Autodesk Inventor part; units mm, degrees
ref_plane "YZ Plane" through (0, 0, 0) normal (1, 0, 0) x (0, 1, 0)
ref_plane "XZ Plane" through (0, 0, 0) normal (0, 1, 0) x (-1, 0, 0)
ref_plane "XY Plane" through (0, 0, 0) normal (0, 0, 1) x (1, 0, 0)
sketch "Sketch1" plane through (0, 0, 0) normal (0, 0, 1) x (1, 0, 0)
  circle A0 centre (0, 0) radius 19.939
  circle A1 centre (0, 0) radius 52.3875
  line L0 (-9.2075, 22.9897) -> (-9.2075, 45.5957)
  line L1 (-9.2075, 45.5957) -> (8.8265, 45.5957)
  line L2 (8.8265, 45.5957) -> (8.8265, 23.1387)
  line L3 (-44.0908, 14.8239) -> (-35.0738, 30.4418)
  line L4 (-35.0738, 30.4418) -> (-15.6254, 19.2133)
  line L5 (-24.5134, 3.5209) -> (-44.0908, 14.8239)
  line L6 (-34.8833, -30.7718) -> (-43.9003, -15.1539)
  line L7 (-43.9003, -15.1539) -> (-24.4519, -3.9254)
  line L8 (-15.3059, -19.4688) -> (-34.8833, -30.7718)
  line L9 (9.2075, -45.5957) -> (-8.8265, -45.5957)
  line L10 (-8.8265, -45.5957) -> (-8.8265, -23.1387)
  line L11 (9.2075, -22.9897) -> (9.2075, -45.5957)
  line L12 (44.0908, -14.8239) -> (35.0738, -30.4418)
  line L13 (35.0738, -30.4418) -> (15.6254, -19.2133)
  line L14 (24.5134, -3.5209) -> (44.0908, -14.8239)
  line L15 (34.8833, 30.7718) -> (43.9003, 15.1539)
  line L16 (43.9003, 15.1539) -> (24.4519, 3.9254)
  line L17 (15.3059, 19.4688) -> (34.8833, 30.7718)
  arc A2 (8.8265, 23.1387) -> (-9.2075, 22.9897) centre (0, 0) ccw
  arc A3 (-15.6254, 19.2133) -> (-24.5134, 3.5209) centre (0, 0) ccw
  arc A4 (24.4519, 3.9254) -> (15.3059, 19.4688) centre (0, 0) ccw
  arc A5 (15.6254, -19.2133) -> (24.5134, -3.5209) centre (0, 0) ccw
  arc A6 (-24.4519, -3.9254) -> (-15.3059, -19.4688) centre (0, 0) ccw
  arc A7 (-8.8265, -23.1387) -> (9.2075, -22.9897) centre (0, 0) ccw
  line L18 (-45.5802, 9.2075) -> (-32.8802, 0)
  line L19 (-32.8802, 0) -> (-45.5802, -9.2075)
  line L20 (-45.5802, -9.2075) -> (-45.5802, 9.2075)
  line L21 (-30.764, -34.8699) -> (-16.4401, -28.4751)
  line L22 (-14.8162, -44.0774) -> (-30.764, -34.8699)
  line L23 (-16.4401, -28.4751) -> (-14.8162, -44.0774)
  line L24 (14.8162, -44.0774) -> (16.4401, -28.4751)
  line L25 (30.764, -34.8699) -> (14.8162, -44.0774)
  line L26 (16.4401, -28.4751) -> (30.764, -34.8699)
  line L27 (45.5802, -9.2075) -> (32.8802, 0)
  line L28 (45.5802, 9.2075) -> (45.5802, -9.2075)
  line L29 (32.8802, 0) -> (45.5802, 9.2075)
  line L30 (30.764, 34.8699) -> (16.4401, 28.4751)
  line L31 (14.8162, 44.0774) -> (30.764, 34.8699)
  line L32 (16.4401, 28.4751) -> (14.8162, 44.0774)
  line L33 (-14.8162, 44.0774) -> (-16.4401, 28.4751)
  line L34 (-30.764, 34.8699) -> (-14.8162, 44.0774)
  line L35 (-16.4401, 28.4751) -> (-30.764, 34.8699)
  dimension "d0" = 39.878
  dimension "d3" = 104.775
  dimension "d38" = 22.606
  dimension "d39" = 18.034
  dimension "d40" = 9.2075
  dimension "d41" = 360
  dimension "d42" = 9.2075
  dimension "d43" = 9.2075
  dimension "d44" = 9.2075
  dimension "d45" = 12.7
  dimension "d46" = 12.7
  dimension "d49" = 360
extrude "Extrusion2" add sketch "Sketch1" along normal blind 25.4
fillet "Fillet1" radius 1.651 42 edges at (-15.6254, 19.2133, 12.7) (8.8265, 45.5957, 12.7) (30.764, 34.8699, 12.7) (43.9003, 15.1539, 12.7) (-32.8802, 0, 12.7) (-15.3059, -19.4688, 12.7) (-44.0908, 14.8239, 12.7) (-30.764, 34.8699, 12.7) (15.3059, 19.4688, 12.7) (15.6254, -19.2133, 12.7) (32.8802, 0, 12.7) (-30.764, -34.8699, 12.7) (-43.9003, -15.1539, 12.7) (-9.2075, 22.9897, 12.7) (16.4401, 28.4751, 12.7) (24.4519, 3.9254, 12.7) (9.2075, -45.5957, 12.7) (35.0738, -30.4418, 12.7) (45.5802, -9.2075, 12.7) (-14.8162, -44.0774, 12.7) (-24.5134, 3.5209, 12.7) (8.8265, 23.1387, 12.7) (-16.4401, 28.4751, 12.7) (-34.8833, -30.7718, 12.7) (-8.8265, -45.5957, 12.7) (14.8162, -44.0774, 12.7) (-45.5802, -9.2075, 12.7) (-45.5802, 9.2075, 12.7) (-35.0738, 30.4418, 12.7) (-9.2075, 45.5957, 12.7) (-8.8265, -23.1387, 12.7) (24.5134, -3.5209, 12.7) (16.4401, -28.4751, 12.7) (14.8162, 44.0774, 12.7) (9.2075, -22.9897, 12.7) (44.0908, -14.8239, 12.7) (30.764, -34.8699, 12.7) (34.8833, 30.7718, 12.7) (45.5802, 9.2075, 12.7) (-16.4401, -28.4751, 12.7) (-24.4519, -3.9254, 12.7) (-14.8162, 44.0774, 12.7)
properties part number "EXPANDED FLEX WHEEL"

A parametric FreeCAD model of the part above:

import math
import FreeCAD as App
import Part
import Sketcher

V = App.Vector
Q = App.Units.Quantity


def edges_at(feature, points):
    """Names of the edges that pass closest to the given points."""
    edges = feature.Shape.Edges
    near = lambda p: min(range(len(edges)), key=lambda i: edges[i].distToShape(Part.Vertex(*p))[0])
    return sorted({f"Edge{near(p) + 1}" for p in points})

doc = App.newDocument("Part")
params = doc.addObject("Spreadsheet::Sheet", "Params")
for row, (alias, value) in enumerate([
    ("sketch1_diameter", "1.57 in"),
    ("sketch1_diameter2", "4.125 in"),
    ("sketch1_width", "0.71 in"),
    ("sketch1_height", "0.89 in"),
    ("sketch1_length", "0.89 in"),
    ("pad1_length", "1 in"),
    ("fillet_radius", "0.065 in"),
], start=1):
    params.set(f"A{row}", alias)
    params.set(f"B{row}", "=" + value)
    params.setAlias(f"B{row}", alias)

body = doc.addObject("PartDesign::Body", "Body")

sketch1 = body.newObject("Sketcher::SketchObject", "Sketch")
sketch1.AttachmentSupport = (doc.getObject("XY_Plane"), [""])
sketch1.MapMode = "FlatFace"
sketch1.addGeometry([
    Part.Circle(V(0, 0, 0), V(0, 0, 1), 52),
    Part.LineSegment(V(-15, -44, 0), V(-31, -35, 0)),
    Part.LineSegment(V(-31, -35, 0), V(-16, -28, 0)),
    Part.LineSegment(V(-16, -28, 0), V(-15, -44, 0)),
    Part.LineSegment(V(-15, -19, 0), V(-35, -31, 0)),
    Part.LineSegment(V(-35, -31, 0), V(-44, -15, 0)),
    Part.LineSegment(V(-44, -15, 0), V(-24, -4, 0)),
    Part.ArcOfCircle(Part.Circle(V(0, 0, 0), V(0, 0, 1), 25), math.radians(-171), math.radians(-128)),
    Part.LineSegment(V(9, -23, 0), V(9, -46, 0)),
    Part.LineSegment(V(9, -46, 0), V(-9, -46, 0)),
    Part.LineSegment(V(-9, -46, 0), V(-9, -23, 0)),
    Part.ArcOfCircle(Part.Circle(V(0, 0, 0), V(0, 0, 1), 25), math.radians(-111), math.radians(-68)),
    Part.LineSegment(V(31, -35, 0), V(15, -44, 0)),
    Part.LineSegment(V(15, -44, 0), V(16, -28, 0)),
    Part.LineSegment(V(16, -28, 0), V(31, -35, 0)),
    Part.LineSegment(V(25, -4, 0), V(44, -15, 0)),
    Part.LineSegment(V(44, -15, 0), V(35, -30, 0)),
    Part.LineSegment(V(35, -30, 0), V(16, -19, 0)),
    Part.ArcOfCircle(Part.Circle(V(0, 0, 0), V(0, 0, 1), 25), math.radians(-51), math.radians(-8)),
    Part.LineSegment(V(-46, -9, 0), V(-46, 9, 0)),
    Part.LineSegment(V(-46, 9, 0), V(-33, 0, 0)),
    Part.LineSegment(V(-33, 0, 0), V(-46, -9, 0)),
    Part.LineSegment(V(-25, 4, 0), V(-44, 15, 0)),
    Part.LineSegment(V(-44, 15, 0), V(-35, 30, 0)),
    Part.LineSegment(V(-35, 30, 0), V(-16, 19, 0)),
    Part.ArcOfCircle(Part.Circle(V(0, 0, 0), V(0, 0, 1), 25), math.radians(129), math.radians(172)),
    Part.LineSegment(V(-31, 35, 0), V(-15, 44, 0)),
    Part.LineSegment(V(-15, 44, 0), V(-16, 28, 0)),
    Part.LineSegment(V(-16, 28, 0), V(-31, 35, 0)),
    Part.ArcOfCircle(Part.Circle(V(0, 0, 0), V(0, 0, 1), 25), math.radians(69), math.radians(112)),
    Part.LineSegment(V(-9, 23, 0), V(-9, 46, 0)),
    Part.LineSegment(V(-9, 46, 0), V(9, 46, 0)),
    Part.LineSegment(V(9, 46, 0), V(9, 23, 0)),
    Part.Circle(V(0, 0, 0), V(0, 0, 1), 20),
    Part.LineSegment(V(46, 9, 0), V(46, -9, 0)),
    Part.LineSegment(V(46, -9, 0), V(33, 0, 0)),
    Part.LineSegment(V(33, 0, 0), V(46, 9, 0)),
    Part.LineSegment(V(15, 19, 0), V(35, 31, 0)),
    Part.LineSegment(V(35, 31, 0), V(44, 15, 0)),
    Part.LineSegment(V(44, 15, 0), V(24, 4, 0)),
    Part.ArcOfCircle(Part.Circle(V(0, 0, 0), V(0, 0, 1), 25), math.radians(9), math.radians(52)),
    Part.LineSegment(V(15, 44, 0), V(31, 35, 0)),
    Part.LineSegment(V(31, 35, 0), V(16, 28, 0)),
    Part.LineSegment(V(16, 28, 0), V(15, 44, 0)),
], False)
sketch1.addConstraint([
    Sketcher.Constraint("Coincident", 1, 2, 2, 1),
    Sketcher.Constraint("Coincident", 2, 2, 3, 1),
    Sketcher.Constraint("Coincident", 3, 2, 1, 1),
    Sketcher.Constraint("Coincident", 4, 2, 5, 1),
    Sketcher.Constraint("Coincident", 5, 2, 6, 1),
    Sketcher.Constraint("Coincident", 6, 2, 7, 1),
    Sketcher.Constraint("Coincident", 7, 2, 4, 1),
    Sketcher.Constraint("Coincident", 8, 2, 9, 1),
    Sketcher.Constraint("Coincident", 9, 2, 10, 1),
    Sketcher.Constraint("Coincident", 10, 2, 11, 1),
    Sketcher.Constraint("Coincident", 11, 2, 8, 1),
    Sketcher.Constraint("Coincident", 12, 2, 13, 1),
    Sketcher.Constraint("Coincident", 13, 2, 14, 1),
    Sketcher.Constraint("Coincident", 14, 2, 12, 1),
    Sketcher.Constraint("Coincident", 15, 2, 16, 1),
    Sketcher.Constraint("Coincident", 16, 2, 17, 1),
    Sketcher.Constraint("Coincident", 17, 2, 18, 1),
    Sketcher.Constraint("Coincident", 18, 2, 15, 1),
    Sketcher.Constraint("Coincident", 19, 2, 20, 1),
    Sketcher.Constraint("Coincident", 20, 2, 21, 1),
    Sketcher.Constraint("Coincident", 21, 2, 19, 1),
    Sketcher.Constraint("Coincident", 22, 2, 23, 1),
    Sketcher.Constraint("Coincident", 23, 2, 24, 1),
    Sketcher.Constraint("Coincident", 24, 2, 25, 1),
    Sketcher.Constraint("Coincident", 25, 2, 22, 1),
    Sketcher.Constraint("Coincident", 26, 2, 27, 1),
    Sketcher.Constraint("Coincident", 27, 2, 28, 1),
    Sketcher.Constraint("Coincident", 28, 2, 26, 1),
    Sketcher.Constraint("Coincident", 29, 2, 30, 1),
    Sketcher.Constraint("Coincident", 30, 2, 31, 1),
    Sketcher.Constraint("Coincident", 31, 2, 32, 1),
    Sketcher.Constraint("Coincident", 32, 2, 29, 1),
    Sketcher.Constraint("Coincident", 34, 2, 35, 1),
    Sketcher.Constraint("Coincident", 35, 2, 36, 1),
    Sketcher.Constraint("Coincident", 36, 2, 34, 1),
    Sketcher.Constraint("Coincident", 37, 2, 38, 1),
    Sketcher.Constraint("Coincident", 38, 2, 39, 1),
    Sketcher.Constraint("Coincident", 39, 2, 40, 1),
    Sketcher.Constraint("Coincident", 40, 2, 37, 1),
    Sketcher.Constraint("Coincident", 41, 2, 42, 1),
    Sketcher.Constraint("Coincident", 42, 2, 43, 1),
    Sketcher.Constraint("Coincident", 43, 2, 41, 1),
    Sketcher.Constraint("Vertical", 8),
    Sketcher.Constraint("Horizontal", 9),
    Sketcher.Constraint("Vertical", 10),
    Sketcher.Constraint("Vertical", 19),
    Sketcher.Constraint("Vertical", 30),
    Sketcher.Constraint("Horizontal", 31),
    Sketcher.Constraint("Vertical", 32),
    Sketcher.Constraint("Vertical", 34),
    Sketcher.Constraint("Coincident", 0, 3, -1, 1),
    Sketcher.Constraint("Coincident", 7, 3, -1, 1),
    Sketcher.Constraint("Coincident", 11, 3, -1, 1),
    Sketcher.Constraint("Coincident", 18, 3, -1, 1),
    Sketcher.Constraint("Coincident", 25, 3, -1, 1),
    Sketcher.Constraint("Coincident", 29, 3, -1, 1),
    Sketcher.Constraint("Coincident", 33, 3, -1, 1),
    Sketcher.Constraint("Coincident", 40, 3, -1, 1),
    Sketcher.Constraint("Equal", 7, 11),
    Sketcher.Constraint("Equal", 11, 18),
    Sketcher.Constraint("Equal", 18, 25),
    Sketcher.Constraint("Equal", 25, 29),
    Sketcher.Constraint("Equal", 29, 40),
    Sketcher.Constraint("Symmetric", 15, 2, 22, 2, -1, 1),
    Sketcher.Constraint("Symmetric", 16, 2, 23, 2, -1, 1),
    Sketcher.Constraint("Symmetric", 12, 2, 26, 2, -1, 1),
    Sketcher.Constraint("Symmetric", 13, 2, 27, 2, -1, 1),
    Sketcher.Constraint("Symmetric", 14, 2, 28, 2, -1, 1),
    Sketcher.Constraint("Symmetric", 8, 2, 30, 2, -1, 1),
    Sketcher.Constraint("Symmetric", 19, 2, 34, 2, -1, 1),
    Sketcher.Constraint("Symmetric", 20, 2, 35, 2, -1, 1),
    Sketcher.Constraint("Symmetric", 4, 2, 37, 2, -1, 1),
    Sketcher.Constraint("Symmetric", 5, 2, 38, 2, -1, 1),
    Sketcher.Constraint("Symmetric", 1, 2, 41, 2, -1, 1),
    Sketcher.Constraint("Symmetric", 2, 2, 42, 2, -1, 1),
    Sketcher.Constraint("Symmetric", 3, 2, 43, 2, -1, 1),
    Sketcher.Constraint("Symmetric", 3, 2, 12, 2, -2),
    Sketcher.Constraint("Symmetric", 2, 2, 13, 2, -2),
    Sketcher.Constraint("Symmetric", 1, 2, 14, 2, -2),
    Sketcher.Constraint("PointOnObject", 20, 2, -1),
    Sketcher.Constraint("Perpendicular", 4, 5),
    Sketcher.Constraint("Perpendicular", 5, 6),
    Sketcher.Constraint("Parallel", 6, 12),
    Sketcher.Constraint("Parallel", 1, 15),
    Sketcher.Constraint("Perpendicular", 15, 16),
    Sketcher.Constraint("Perpendicular", 16, 17),
    Sketcher.Constraint("Parallel", 17, 22),
    Sketcher.Constraint("Perpendicular", 23, 24),
    Sketcher.Constraint("Parallel", 21, 36),
    Sketcher.Constraint("Parallel", 26, 37),
    Sketcher.Constraint("Perpendicular", 38, 39),
    Sketcher.Constraint("Horizontal", 21, 2, 34, 2),
    Sketcher.Constraint("Equal", 9, 31),
    Sketcher.Constraint("Equal", 2, 3),
    Sketcher.Constraint("Equal", 4, 15),
    Sketcher.Constraint("Equal", 5, 16),
    Sketcher.Constraint("Equal", 6, 17),
    Sketcher.Constraint("Equal", 14, 20),
    Sketcher.Constraint("Diameter", 33, Q("1.57 in")),
    Sketcher.Constraint("Diameter", 0, Q("4.125 in")),
    Sketcher.Constraint("DistanceX", 9, 2, 9, 1, Q("0.71 in")),
    Sketcher.Constraint("DistanceY", 8, 2, 8, 1, Q("0.89 in")),
    Sketcher.Constraint("DistanceX", 19, 2, 20, 2, Q("0.5 in")),
    Sketcher.Constraint("Distance", 4, Q("0.89 in")),
    Sketcher.Constraint("Distance", 5, Q("0.71 in")),
    Sketcher.Constraint("Angle", 1, Q("150 deg")),
    Sketcher.Constraint("Radius", 7, Q("0.975 in")),
    Sketcher.Constraint("DistanceX", -1, 1, 8, 2, Q("0.3625 in")),
    Sketcher.Constraint("DistanceY", -1, 1, 19, 2, Q("0.3625 in")),
    Sketcher.Constraint("DistanceY", 3, 2, 1, 2, Q("0.3625 in")),
    Sketcher.Constraint("DistanceX", 40, 2, 18, 2, Q("0.3625 in")),
    Sketcher.Constraint("DistanceX", 17, 2, 14, 2, Q("0.596 in")),
    Sketcher.Constraint("DistanceX", 32, 2, 36, 2, Q("1.447 in")),
    Sketcher.Constraint("DistanceY", 2, 2, 10, 2, Q("0.2101 in")),
])
sketch1.setExpression("Constraints[98]", "Params.sketch1_diameter")
sketch1.setExpression("Constraints[99]", "Params.sketch1_diameter2")
sketch1.setExpression("Constraints[100]", "Params.sketch1_width")
sketch1.setExpression("Constraints[101]", "Params.sketch1_height")
sketch1.setExpression("Constraints[103]", "Params.sketch1_length")
pad1 = body.newObject("PartDesign::Pad", "Pad")
pad1.Profile = sketch1
pad1.setExpression("Length", "Params.pad1_length")
doc.recompute()

fillet = body.newObject("PartDesign::Fillet", "Fillet")
fillet.Base = (pad1, edges_at(pad1, [
    (-15.625, 19.213, 12.7),
    (8.826, 45.596, 12.7),
    (30.764, 34.87, 12.7),
    (43.9, 15.154, 12.7),
    (-32.88, 0, 12.7),
    (-15.306, -19.469, 12.7),
    (-44.091, 14.824, 12.7),
    (-30.764, 34.87, 12.7),
    (15.306, 19.469, 12.7),
    (15.625, -19.213, 12.7),
    (32.88, 0, 12.7),
    (-30.764, -34.87, 12.7),
    (-43.9, -15.154, 12.7),
    (-9.207, 22.99, 12.7),
    (16.44, 28.475, 12.7),
    (24.452, 3.925, 12.7),
    (9.207, -45.596, 12.7),
    (35.074, -30.442, 12.7),
    (45.58, -9.207, 12.7),
    (-14.816, -44.077, 12.7),
    (-24.513, 3.521, 12.7),
    (8.826, 23.139, 12.7),
    (-16.44, 28.475, 12.7),
    (-34.883, -30.772, 12.7),
    (-8.826, -45.596, 12.7),
    (14.816, -44.077, 12.7),
    (-45.58, -9.207, 12.7),
    (-45.58, 9.207, 12.7),
    (-35.074, 30.442, 12.7),
    (-9.207, 45.596, 12.7),
    (-8.826, -23.139, 12.7),
    (24.513, -3.521, 12.7),
    (16.44, -28.475, 12.7),
    (14.816, 44.077, 12.7),
    (9.207, -22.99, 12.7),
    (44.091, -14.824, 12.7),
    (30.764, -34.87, 12.7),
    (34.883, 30.772, 12.7),
    (45.58, 9.207, 12.7),
    (-16.44, -28.475, 12.7),
    (-24.452, -3.925, 12.7),
    (-14.816, 44.077, 12.7),
]))
fillet.setExpression("Radius", "Params.fillet_radius")

doc.recompute()
